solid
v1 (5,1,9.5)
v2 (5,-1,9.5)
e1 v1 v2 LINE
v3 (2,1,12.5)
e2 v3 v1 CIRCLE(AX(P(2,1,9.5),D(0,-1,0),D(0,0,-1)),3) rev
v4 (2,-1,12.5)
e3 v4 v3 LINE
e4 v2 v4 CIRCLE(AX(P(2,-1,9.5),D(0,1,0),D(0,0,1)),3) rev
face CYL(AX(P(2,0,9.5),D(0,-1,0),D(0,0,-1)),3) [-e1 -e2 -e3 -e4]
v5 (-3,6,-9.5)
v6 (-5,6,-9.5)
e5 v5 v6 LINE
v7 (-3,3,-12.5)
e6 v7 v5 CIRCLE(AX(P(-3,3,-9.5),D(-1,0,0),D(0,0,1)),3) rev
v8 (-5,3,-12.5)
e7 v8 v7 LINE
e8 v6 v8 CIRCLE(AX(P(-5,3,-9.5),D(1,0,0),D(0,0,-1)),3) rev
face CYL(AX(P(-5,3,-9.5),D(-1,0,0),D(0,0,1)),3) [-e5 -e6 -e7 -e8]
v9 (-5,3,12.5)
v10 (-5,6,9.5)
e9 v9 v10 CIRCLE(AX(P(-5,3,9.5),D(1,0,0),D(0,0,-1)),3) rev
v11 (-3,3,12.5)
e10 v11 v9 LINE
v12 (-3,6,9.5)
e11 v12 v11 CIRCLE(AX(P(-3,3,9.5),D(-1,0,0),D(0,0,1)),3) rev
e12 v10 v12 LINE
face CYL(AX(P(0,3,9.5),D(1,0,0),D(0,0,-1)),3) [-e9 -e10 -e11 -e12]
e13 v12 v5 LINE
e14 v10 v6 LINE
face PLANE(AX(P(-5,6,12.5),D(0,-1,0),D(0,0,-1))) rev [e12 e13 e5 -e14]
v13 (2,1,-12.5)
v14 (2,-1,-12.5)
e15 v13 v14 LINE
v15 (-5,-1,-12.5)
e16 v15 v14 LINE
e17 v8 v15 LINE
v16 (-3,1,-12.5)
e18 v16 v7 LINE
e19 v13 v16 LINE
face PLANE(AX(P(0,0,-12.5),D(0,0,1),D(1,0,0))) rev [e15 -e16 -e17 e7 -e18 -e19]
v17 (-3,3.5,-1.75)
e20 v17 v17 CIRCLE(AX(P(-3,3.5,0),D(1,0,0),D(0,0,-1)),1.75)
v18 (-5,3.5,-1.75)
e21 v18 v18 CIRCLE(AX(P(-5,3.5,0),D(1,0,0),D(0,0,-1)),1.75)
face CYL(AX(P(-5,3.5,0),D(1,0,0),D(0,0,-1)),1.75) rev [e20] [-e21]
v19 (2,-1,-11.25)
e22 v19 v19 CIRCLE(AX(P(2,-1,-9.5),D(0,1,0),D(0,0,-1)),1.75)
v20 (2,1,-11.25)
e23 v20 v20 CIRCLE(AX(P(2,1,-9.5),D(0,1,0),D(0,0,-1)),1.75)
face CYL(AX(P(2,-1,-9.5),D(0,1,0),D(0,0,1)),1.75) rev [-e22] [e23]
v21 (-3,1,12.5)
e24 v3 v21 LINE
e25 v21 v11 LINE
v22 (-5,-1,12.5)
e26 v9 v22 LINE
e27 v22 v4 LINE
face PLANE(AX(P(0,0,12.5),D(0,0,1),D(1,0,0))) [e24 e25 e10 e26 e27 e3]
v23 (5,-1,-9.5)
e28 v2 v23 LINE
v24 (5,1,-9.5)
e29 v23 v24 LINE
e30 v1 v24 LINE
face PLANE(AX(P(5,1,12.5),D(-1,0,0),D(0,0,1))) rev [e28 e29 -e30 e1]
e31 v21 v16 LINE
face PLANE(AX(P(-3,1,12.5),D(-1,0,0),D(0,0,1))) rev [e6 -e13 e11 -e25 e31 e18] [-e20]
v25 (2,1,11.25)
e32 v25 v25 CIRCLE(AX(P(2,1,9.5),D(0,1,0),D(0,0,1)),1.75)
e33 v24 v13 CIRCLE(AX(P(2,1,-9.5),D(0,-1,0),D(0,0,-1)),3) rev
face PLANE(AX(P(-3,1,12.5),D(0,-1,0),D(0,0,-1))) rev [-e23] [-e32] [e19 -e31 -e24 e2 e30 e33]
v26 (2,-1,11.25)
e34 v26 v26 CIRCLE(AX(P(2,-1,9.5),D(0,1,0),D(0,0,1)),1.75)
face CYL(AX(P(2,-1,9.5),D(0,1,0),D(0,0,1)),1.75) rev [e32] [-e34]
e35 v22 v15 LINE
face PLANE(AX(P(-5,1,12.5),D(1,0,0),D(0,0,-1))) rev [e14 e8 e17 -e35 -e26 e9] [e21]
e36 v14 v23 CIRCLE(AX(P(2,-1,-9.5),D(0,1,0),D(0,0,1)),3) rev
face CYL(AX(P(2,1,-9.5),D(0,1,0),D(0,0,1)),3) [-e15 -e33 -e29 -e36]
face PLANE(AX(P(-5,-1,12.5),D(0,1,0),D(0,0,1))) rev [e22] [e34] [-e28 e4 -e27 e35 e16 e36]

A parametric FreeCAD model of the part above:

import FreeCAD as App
import Part
import Sketcher


def edges_at(feature, points):
    """Names of the edges that pass closest to the given points."""
    edges = feature.Shape.Edges
    near = lambda p: min(range(len(edges)), key=lambda i: edges[i].distToShape(Part.Vertex(*p))[0])
    return sorted({f"Edge{near(p) + 1}" for p in points})

doc = App.newDocument("Part")
params = doc.addObject("Spreadsheet::Sheet", "Params")
for row, (alias, value) in enumerate([
    ("sketch1_width", "8 mm"),
    ("sketch1_width2", "2 mm"),
    ("sketch1_height", "5 mm"),
    ("pad1_length", "25 mm"),
    ("fillet_radius", "3 mm"),
    ("sketch2_diameter", "3.5 mm"),
    ("sketch3_diameter", "3.5 mm"),
], start=1):
    params.set(f"A{row}", alias)
    params.set(f"B{row}", "=" + value)
    params.setAlias(f"B{row}", alias)

body = doc.addObject("PartDesign::Body", "Body")

sketch1 = body.newObject("Sketcher::SketchObject", "Sketch")
sketch1.AttachmentSupport = (doc.getObject("XY_Plane"), [""])
sketch1.MapMode = "FlatFace"
sketch1.addGeometry(Part.LineSegment(App.Vector(5, 1, 0), App.Vector(-3, 1, 0)), False)
sketch1.addGeometry(Part.LineSegment(App.Vector(-3, 1, 0), App.Vector(-3, 6, 0)), False)
sketch1.addGeometry(Part.LineSegment(App.Vector(-3, 6, 0), App.Vector(-5, 6, 0)), False)
sketch1.addGeometry(Part.LineSegment(App.Vector(-5, 6, 0), App.Vector(-5, -1, 0)), False)
sketch1.addGeometry(Part.LineSegment(App.Vector(-5, -1, 0), App.Vector(5, -1, 0)), False)
sketch1.addGeometry(Part.LineSegment(App.Vector(5, -1, 0), App.Vector(5, 1, 0)), False)
sketch1.addConstraint(Sketcher.Constraint("Coincident", 0, 2, 1, 1))
sketch1.addConstraint(Sketcher.Constraint("Coincident", 1, 2, 2, 1))
sketch1.addConstraint(Sketcher.Constraint("Coincident", 2, 2, 3, 1))
sketch1.addConstraint(Sketcher.Constraint("Coincident", 3, 2, 4, 1))
sketch1.addConstraint(Sketcher.Constraint("Coincident", 4, 2, 5, 1))
sketch1.addConstraint(Sketcher.Constraint("Coincident", 5, 2, 0, 1))
sketch1.addConstraint(Sketcher.Constraint("Horizontal", 0))
sketch1.addConstraint(Sketcher.Constraint("Vertical", 1))
sketch1.addConstraint(Sketcher.Constraint("Horizontal", 2))
sketch1.addConstraint(Sketcher.Constraint("Vertical", 3))
sketch1.addConstraint(Sketcher.Constraint("Horizontal", 4))
sketch1.addConstraint(Sketcher.Constraint("Vertical", 5))
sketch1.addConstraint(Sketcher.Constraint("Symmetric", 3, 2, 5, 2, -1, 1))
sketch1.addConstraint(Sketcher.Constraint("Equal", 2, 5))
sketch1.addConstraint(Sketcher.Constraint("DistanceX", 0, 2, 0, 1, 8.0))
sketch1.addConstraint(Sketcher.Constraint("DistanceX", 2, 2, 2, 1, 2.0))
sketch1.addConstraint(Sketcher.Constraint("DistanceY", 1, 1, 1, 2, 5.0))
sketch1.setExpression("Constraints[14]", "Params.sketch1_width")
sketch1.setExpression("Constraints[15]", "Params.sketch1_width2")
sketch1.setExpression("Constraints[16]", "Params.sketch1_height")
pad1 = body.newObject("PartDesign::Pad", "Pad")
pad1.Profile = sketch1
pad1.setExpression("Length", "Params.pad1_length")
pad1.Midplane = True
doc.recompute()

fillet = body.newObject("PartDesign::Fillet", "Fillet")
fillet.Base = (pad1, edges_at(pad1, [
    (5, 0, -12.5),
    (-4, 6, 12.5),
    (5, 0, 12.5),
    (-4, 6, -12.5),
]))
fillet.setExpression("Radius", "Params.fillet_radius")

sketch2 = body.newObject("Sketcher::SketchObject", "Sketch001")
sketch2.AttachmentSupport = (doc.getObject("XZ_Plane"), [""])
sketch2.MapMode = "FlatFace"
sketch2.AttachmentOffset = App.Placement(App.Vector(0, 0, -1), App.Rotation())
sketch2.addGeometry(Part.Circle(App.Vector(2, 9.5, 0), App.Vector(0, 0, 1), 1.75), False)
sketch2.addGeometry(Part.Circle(App.Vector(2, -9.5, 0), App.Vector(0, 0, 1), 1.75), False)
sketch2.addConstraint(Sketcher.Constraint("Equal", 0, 1))
sketch2.addConstraint(Sketcher.Constraint("Symmetric", 0, 3, 1, 3, -1))
sketch2.addConstraint(Sketcher.Constraint("Diameter", 0, 3.5))
sketch2.addConstraint(Sketcher.Constraint("DistanceX", -1, 1, 0, 3, 2.0))
sketch2.addConstraint(Sketcher.Constraint("DistanceY", 1, 3, 0, 3, 19.0))
sketch2.setExpression("Constraints[2]", "Params.sketch2_diameter")
pocket1 = body.newObject("PartDesign::Pocket", "Pocket")
pocket1.Profile = sketch2
pocket1.Type = "ThroughAll"
pocket1.Reversed = True

sketch3 = body.newObject("Sketcher::SketchObject", "Sketch002")
sketch3.AttachmentSupport = (doc.getObject("YZ_Plane"), [""])
sketch3.MapMode = "FlatFace"
sketch3.AttachmentOffset = App.Placement(App.Vector(0, 0, -3), App.Rotation())
sketch3.addGeometry(Part.Circle(App.Vector(3.5, 0, 0), App.Vector(0, 0, 1), 1.75), False)
sketch3.addConstraint(Sketcher.Constraint("PointOnObject", 0, 3, -1))
sketch3.addConstraint(Sketcher.Constraint("Diameter", 0, 3.5))
sketch3.addConstraint(Sketcher.Constraint("DistanceX", -1, 1, 0, 3, 3.5))
sketch3.setExpression("Constraints[1]", "Params.sketch3_diameter")
pocket2 = body.newObject("PartDesign::Pocket", "Pocket001")
pocket2.Profile = sketch3
pocket2.Type = "ThroughAll"

doc.recompute()
